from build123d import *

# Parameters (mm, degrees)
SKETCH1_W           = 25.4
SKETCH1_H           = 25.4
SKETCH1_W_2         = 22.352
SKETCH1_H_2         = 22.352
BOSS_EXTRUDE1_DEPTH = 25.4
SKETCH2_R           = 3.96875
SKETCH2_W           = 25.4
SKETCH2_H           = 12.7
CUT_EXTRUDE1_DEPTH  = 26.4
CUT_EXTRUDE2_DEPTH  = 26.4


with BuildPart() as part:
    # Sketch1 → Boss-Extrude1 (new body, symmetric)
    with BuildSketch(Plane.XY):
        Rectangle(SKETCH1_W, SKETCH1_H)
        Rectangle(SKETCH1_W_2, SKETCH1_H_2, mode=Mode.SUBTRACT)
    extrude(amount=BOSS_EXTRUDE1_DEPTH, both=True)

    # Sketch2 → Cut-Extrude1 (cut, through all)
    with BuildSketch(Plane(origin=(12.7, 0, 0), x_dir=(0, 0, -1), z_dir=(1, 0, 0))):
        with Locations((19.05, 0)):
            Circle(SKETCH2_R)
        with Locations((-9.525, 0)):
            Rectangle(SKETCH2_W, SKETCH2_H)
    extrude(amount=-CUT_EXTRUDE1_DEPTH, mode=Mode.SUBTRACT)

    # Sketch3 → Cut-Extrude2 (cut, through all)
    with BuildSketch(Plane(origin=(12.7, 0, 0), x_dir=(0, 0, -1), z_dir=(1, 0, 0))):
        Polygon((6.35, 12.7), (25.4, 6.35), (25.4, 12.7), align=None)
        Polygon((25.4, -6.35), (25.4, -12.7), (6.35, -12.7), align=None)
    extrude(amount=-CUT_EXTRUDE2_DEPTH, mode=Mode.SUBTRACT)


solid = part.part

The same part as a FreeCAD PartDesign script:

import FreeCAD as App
import Part
import Sketcher

V = App.Vector
Q = App.Units.Quantity

doc = App.newDocument("Part")
body = doc.addObject("PartDesign::Body", "Body")

# Sketch on XY plane
sketch1 = body.newObject("Sketcher::SketchObject", "Sketch")
sketch1.AttachmentSupport = (doc.getObject("XY_Plane"), [""])
sketch1.MapMode = "FlatFace"
sketch1.addGeometry(Part.LineSegment(V(-12.7, 12.7, 0), V(-12.7, -12.7, 0)), False)
sketch1.addGeometry(Part.LineSegment(V(-12.7, -12.7, 0), V(12.7, -12.7, 0)), False)
sketch1.addGeometry(Part.LineSegment(V(12.7, -12.7, 0), V(12.7, 12.7, 0)), False)
sketch1.addGeometry(Part.LineSegment(V(12.7, 12.7, 0), V(-12.7, 12.7, 0)), False)
sketch1.addGeometry(Part.LineSegment(V(11.176, -11.176, 0), V(-11.176, -11.176, 0)), False)
sketch1.addGeometry(Part.LineSegment(V(-11.176, -11.176, 0), V(-11.176, 11.176, 0)), False)
sketch1.addGeometry(Part.LineSegment(V(-11.176, 11.176, 0), V(11.176, 11.176, 0)), False)
sketch1.addGeometry(Part.LineSegment(V(11.176, 11.176, 0), V(11.176, -11.176, 0)), False)
sketch1.addConstraint(Sketcher.Constraint("Coincident", 0, 2, 1, 1))
sketch1.addConstraint(Sketcher.Constraint("Coincident", 1, 2, 2, 1))
sketch1.addConstraint(Sketcher.Constraint("Coincident", 2, 2, 3, 1))
sketch1.addConstraint(Sketcher.Constraint("Coincident", 3, 2, 0, 1))
sketch1.addConstraint(Sketcher.Constraint("Coincident", 4, 2, 5, 1))
sketch1.addConstraint(Sketcher.Constraint("Coincident", 5, 2, 6, 1))
sketch1.addConstraint(Sketcher.Constraint("Coincident", 6, 2, 7, 1))
sketch1.addConstraint(Sketcher.Constraint("Coincident", 7, 2, 4, 1))
sketch1.addConstraint(Sketcher.Constraint("Vertical", 0))
sketch1.addConstraint(Sketcher.Constraint("Horizontal", 1))
sketch1.addConstraint(Sketcher.Constraint("Vertical", 2))
sketch1.addConstraint(Sketcher.Constraint("Horizontal", 3))
sketch1.addConstraint(Sketcher.Constraint("Horizontal", 4))
sketch1.addConstraint(Sketcher.Constraint("Vertical", 5))
sketch1.addConstraint(Sketcher.Constraint("Horizontal", 6))
sketch1.addConstraint(Sketcher.Constraint("Vertical", 7))
sketch1.addConstraint(Sketcher.Constraint("Symmetric", 0, 2, 2, 2, -1, 1))
sketch1.addConstraint(Sketcher.Constraint("Symmetric", 4, 2, 6, 2, -1, 1))
sketch1.addConstraint(Sketcher.Constraint("Equal", 3, 0))
sketch1.addConstraint(Sketcher.Constraint("Equal", 6, 5))
sketch1.addConstraint(Sketcher.Constraint("DistanceX", 1, 1, 1, 2, Q("1 in")))
sketch1.addConstraint(Sketcher.Constraint("DistanceX", 4, 2, 4, 1, Q("0.88 in")))
pad1 = body.newObject("PartDesign::Pad", "Pad")
pad1.Profile = sketch1
pad1.Length = Q("2 in")
pad1.Midplane = True

# Sketch on YZ plane
sketch2 = body.newObject("Sketcher::SketchObject", "Sketch001")
sketch2.AttachmentSupport = (doc.getObject("YZ_Plane"), [""])
sketch2.MapMode = "FlatFace"
sketch2.AttachmentOffset = App.Placement(V(0, 0, 0.5 * 25.4), App.Rotation())
sketch2.addGeometry(Part.Circle(V(0, -19.05, 0), V(0, 0, 1), 3.96875), False)
sketch2.addGeometry(Part.LineSegment(V(6.35, 22.225, 0), V(-6.35, 22.225, 0)), False)
sketch2.addGeometry(Part.LineSegment(V(-6.35, 22.225, 0), V(-6.35, -3.175, 0)), False)
sketch2.addGeometry(Part.LineSegment(V(-6.35, -3.175, 0), V(6.35, -3.175, 0)), False)
sketch2.addGeometry(Part.LineSegment(V(6.35, -3.175, 0), V(6.35, 22.225, 0)), False)
sketch2.addConstraint(Sketcher.Constraint("Coincident", 1, 2, 2, 1))
sketch2.addConstraint(Sketcher.Constraint("Coincident", 2, 2, 3, 1))
sketch2.addConstraint(Sketcher.Constraint("Coincident", 3, 2, 4, 1))
sketch2.addConstraint(Sketcher.Constraint("Coincident", 4, 2, 1, 1))
sketch2.addConstraint(Sketcher.Constraint("Horizontal", 1))
sketch2.addConstraint(Sketcher.Constraint("Vertical", 2))
sketch2.addConstraint(Sketcher.Constraint("Horizontal", 3))
sketch2.addConstraint(Sketcher.Constraint("Vertical", 4))
sketch2.addConstraint(Sketcher.Constraint("PointOnObject", 0, 3, -2))
sketch2.addConstraint(Sketcher.Constraint("DistanceY", 2, 2, 2, 1, Q("1 in")))
sketch2.addConstraint(Sketcher.Constraint("Diameter", 0, Q("0.3125 in")))
sketch2.addConstraint(Sketcher.Constraint("DistanceX", 1, 2, 1, 1, Q("0.5 in")))
sketch2.addConstraint(Sketcher.Constraint("DistanceY", 0, 3, -1, 1, Q("0.75 in")))
sketch2.addConstraint(Sketcher.Constraint("DistanceX", 1, 2, -1, 1, Q("0.25 in")))
sketch2.addConstraint(Sketcher.Constraint("DistanceY", -1, 1, 1, 2, Q("0.875 in")))
pocket1 = body.newObject("PartDesign::Pocket", "Pocket")
pocket1.Profile = sketch2
pocket1.Type = "ThroughAll"

# Sketch on YZ plane
sketch3 = body.newObject("Sketcher::SketchObject", "Sketch002")
sketch3.AttachmentSupport = (doc.getObject("YZ_Plane"), [""])
sketch3.MapMode = "FlatFace"
sketch3.AttachmentOffset = App.Placement(V(0, 0, 0.5 * 25.4), App.Rotation())
sketch3.addGeometry(Part.LineSegment(V(12.7, -6.35, 0), V(6.35, -25.4, 0)), False)
sketch3.addGeometry(Part.LineSegment(V(6.35, -25.4, 0), V(12.7, -25.4, 0)), False)
sketch3.addGeometry(Part.LineSegment(V(12.7, -25.4, 0), V(12.7, -6.35, 0)), False)
sketch3.addGeometry(Part.LineSegment(V(-12.7, -25.4, 0), V(-6.35, -25.4, 0)), False)
sketch3.addGeometry(Part.LineSegment(V(-6.35, -25.4, 0), V(-12.7, -6.35, 0)), False)
sketch3.addGeometry(Part.LineSegment(V(-12.7, -6.35, 0), V(-12.7, -25.4, 0)), False)
sketch3.addConstraint(Sketcher.Constraint("Coincident", 0, 2, 1, 1))
sketch3.addConstraint(Sketcher.Constraint("Coincident", 1, 2, 2, 1))
sketch3.addConstraint(Sketcher.Constraint("Coincident", 2, 2, 0, 1))
sketch3.addConstraint(Sketcher.Constraint("Coincident", 3, 2, 4, 1))
sketch3.addConstraint(Sketcher.Constraint("Coincident", 4, 2, 5, 1))
sketch3.addConstraint(Sketcher.Constraint("Coincident", 5, 2, 3, 1))
sketch3.addConstraint(Sketcher.Constraint("Horizontal", 1))
sketch3.addConstraint(Sketcher.Constraint("Vertical", 2))
sketch3.addConstraint(Sketcher.Constraint("Horizontal", 3))
sketch3.addConstraint(Sketcher.Constraint("Vertical", 5))
sketch3.addConstraint(Sketcher.Constraint("Symmetric", 0, 2, 3, 2, -2))
sketch3.addConstraint(Sketcher.Constraint("Symmetric", 2, 2, 4, 2, -2))
sketch3.addConstraint(Sketcher.Constraint("DistanceY", 0, 2, -1, 1, Q("1 in")))
sketch3.addConstraint(Sketcher.Constraint("DistanceX", 4, 2, 2, 2, Q("1 in")))
sketch3.addConstraint(Sketcher.Constraint("DistanceX", 1, 1, 1, 2, Q("0.25 in")))
sketch3.addConstraint(Sketcher.Constraint("DistanceY", 2, 1, 2, 2, Q("0.75 in")))
pocket2 = body.newObject("PartDesign::Pocket", "Pocket001")
pocket2.Profile = sketch3
pocket2.Type = "ThroughAll"

doc.recompute()
